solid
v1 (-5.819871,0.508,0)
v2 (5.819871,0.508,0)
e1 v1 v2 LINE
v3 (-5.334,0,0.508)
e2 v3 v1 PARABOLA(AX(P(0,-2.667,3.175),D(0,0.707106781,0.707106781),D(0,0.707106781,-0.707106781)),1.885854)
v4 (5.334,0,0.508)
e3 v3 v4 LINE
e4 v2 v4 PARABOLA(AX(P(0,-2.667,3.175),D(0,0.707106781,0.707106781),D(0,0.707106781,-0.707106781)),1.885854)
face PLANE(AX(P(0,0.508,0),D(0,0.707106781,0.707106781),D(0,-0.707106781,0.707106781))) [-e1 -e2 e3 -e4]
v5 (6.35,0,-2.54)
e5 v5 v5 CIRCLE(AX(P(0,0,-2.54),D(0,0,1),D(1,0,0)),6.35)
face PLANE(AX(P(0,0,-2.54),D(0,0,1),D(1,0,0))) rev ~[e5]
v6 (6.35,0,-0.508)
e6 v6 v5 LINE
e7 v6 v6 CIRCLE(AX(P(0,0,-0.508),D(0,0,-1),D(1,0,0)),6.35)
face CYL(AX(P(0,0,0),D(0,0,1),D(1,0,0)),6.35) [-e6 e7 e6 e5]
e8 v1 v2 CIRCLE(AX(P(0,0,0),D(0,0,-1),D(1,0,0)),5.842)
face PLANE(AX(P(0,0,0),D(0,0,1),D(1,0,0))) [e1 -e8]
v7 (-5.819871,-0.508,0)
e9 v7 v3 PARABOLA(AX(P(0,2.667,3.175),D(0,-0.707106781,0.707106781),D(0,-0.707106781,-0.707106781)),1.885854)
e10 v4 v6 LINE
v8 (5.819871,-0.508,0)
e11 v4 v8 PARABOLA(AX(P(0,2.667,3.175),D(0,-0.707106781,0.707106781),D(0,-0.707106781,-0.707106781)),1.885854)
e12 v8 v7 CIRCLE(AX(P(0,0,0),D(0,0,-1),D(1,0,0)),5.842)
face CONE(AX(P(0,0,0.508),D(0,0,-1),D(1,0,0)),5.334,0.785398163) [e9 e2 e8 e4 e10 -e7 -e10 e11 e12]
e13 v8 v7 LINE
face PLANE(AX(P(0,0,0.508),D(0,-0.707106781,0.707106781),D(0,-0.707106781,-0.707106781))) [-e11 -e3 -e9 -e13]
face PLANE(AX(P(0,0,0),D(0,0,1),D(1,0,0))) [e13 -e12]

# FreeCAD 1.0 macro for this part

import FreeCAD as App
import Part
import Sketcher

V = App.Vector
Q = App.Units.Quantity


def add_polygon(sketch, points):
    """Adds a closed chain of lines whose ends are joined by coincident constraints."""
    first, n = sketch.GeometryCount, len(points)
    for a, b in zip(points, points[1:] + points[:1]):
        sketch.addGeometry(Part.LineSegment(App.Vector(*a, 0), App.Vector(*b, 0)), False)
    for i in range(n):
        sketch.addConstraint(Sketcher.Constraint("Coincident", first + i, 2, first + (i + 1) % n, 1))

doc = App.newDocument("Part")
body = doc.addObject("PartDesign::Body", "Body")

# Sketch on YZ plane
sketch1 = doc.addObject("Sketcher::SketchObject", "Sketch")
body.addObject(sketch1)
sketch1.AttachmentSupport = (doc.YZ_Plane, [""])
sketch1.MapMode = "FlatFace"
add_polygon(sketch1, [(0, -0.5), (0.5, 0), (0, 0.5), (-0.5, 0)])  # lines 0-3
sketch1.addConstraint([
    Sketcher.Constraint("Symmetric", 0, 2, 2, 2, -1, 1),
    Sketcher.Constraint("Symmetric", 1, 2, 3, 2, -1, 1),
    Sketcher.Constraint("PointOnObject", 0, 2, -1),
    Sketcher.Constraint("PointOnObject", 1, 2, -2),
    Sketcher.Constraint("Perpendicular", 0, 1),
    Sketcher.Constraint("DistanceX", -1, 1, 0, 2, Q("0.02 in")),
])
pad1 = doc.addObject("PartDesign::Pad", "Pad")
body.addObject(pad1)
pad1.Profile = sketch1
pad1.Length = Q("0.5 in")
pad1.Midplane = True

# Sketch on XY plane
sketch2 = doc.addObject("Sketcher::SketchObject", "Sketch001")
body.addObject(sketch2)
sketch2.AttachmentSupport = (doc.XY_Plane, [""])
sketch2.MapMode = "FlatFace"
sketch2.addGeometry(Part.Circle(V(0, 0, 0), V(0, 0, 1), 6), False)
sketch2.addConstraint([
    Sketcher.Constraint("Coincident", 0, 3, -1, 1),
    Sketcher.Constraint("Diameter", 0, Q("0.5 in")),
])
pad2 = doc.addObject("PartDesign::Pad", "Pad001")
body.addObject(pad2)
pad2.Profile = sketch2
pad2.Length = Q("0.1 in")
pad2.Reversed = True

# Sketch on XY plane
sketch3 = doc.addObject("Sketcher::SketchObject", "Sketch002")
body.addObject(sketch3)
sketch3.AttachmentSupport = (doc.XY_Plane, [""])
sketch3.MapMode = "FlatFace"
sketch3.addGeometry([
    Part.Circle(V(0, 0, 0), V(0, 0, 1), 13),
    Part.Circle(V(0, 0, 0), V(0, 0, 1), 6),
], False)
sketch3.addConstraint([
    Sketcher.Constraint("Coincident", 0, 3, -1, 1),
    Sketcher.Constraint("Coincident", 1, 3, -1, 1),
    Sketcher.Constraint("Diameter", 0, Q("1 in")),
    Sketcher.Constraint("Diameter", 1, Q("0.5 in")),
])
pocket1 = doc.addObject("PartDesign::Pocket", "Pocket")
body.addObject(pocket1)
pocket1.Profile = sketch3
pocket1.Length = Q("0.5 in")
pocket1.Midplane = True

# Sketch on XZ plane
sketch4 = doc.addObject("Sketcher::SketchObject", "Sketch003")
body.addObject(sketch4)
sketch4.AttachmentSupport = (doc.XZ_Plane, [""])
sketch4.MapMode = "FlatFace"
add_polygon(sketch4, [(6.3, 0.5), (5.3, 0.5), (6.3, -0.5)])  # lines 0-2
sketch4.addConstraint([
    Sketcher.Constraint("Horizontal", 0),
    Sketcher.Constraint("Vertical", 2),
    Sketcher.Constraint("Equal", 0, 2),
    Sketcher.Constraint("DistanceX", 0, 2, 0, 1, Q("0.04 in")),
    Sketcher.Constraint("DistanceX", -1, 1, 0, 2, Q("0.21 in")),
    Sketcher.Constraint("DistanceY", -1, 1, 0, 2, Q("0.02 in")),
])
groove = doc.addObject("PartDesign::Groove", "Groove")
body.addObject(groove)
groove.Profile = sketch4
groove.ReferenceAxis = (sketch4, ["V_Axis"])
groove.Angle = 360

doc.recompute()
